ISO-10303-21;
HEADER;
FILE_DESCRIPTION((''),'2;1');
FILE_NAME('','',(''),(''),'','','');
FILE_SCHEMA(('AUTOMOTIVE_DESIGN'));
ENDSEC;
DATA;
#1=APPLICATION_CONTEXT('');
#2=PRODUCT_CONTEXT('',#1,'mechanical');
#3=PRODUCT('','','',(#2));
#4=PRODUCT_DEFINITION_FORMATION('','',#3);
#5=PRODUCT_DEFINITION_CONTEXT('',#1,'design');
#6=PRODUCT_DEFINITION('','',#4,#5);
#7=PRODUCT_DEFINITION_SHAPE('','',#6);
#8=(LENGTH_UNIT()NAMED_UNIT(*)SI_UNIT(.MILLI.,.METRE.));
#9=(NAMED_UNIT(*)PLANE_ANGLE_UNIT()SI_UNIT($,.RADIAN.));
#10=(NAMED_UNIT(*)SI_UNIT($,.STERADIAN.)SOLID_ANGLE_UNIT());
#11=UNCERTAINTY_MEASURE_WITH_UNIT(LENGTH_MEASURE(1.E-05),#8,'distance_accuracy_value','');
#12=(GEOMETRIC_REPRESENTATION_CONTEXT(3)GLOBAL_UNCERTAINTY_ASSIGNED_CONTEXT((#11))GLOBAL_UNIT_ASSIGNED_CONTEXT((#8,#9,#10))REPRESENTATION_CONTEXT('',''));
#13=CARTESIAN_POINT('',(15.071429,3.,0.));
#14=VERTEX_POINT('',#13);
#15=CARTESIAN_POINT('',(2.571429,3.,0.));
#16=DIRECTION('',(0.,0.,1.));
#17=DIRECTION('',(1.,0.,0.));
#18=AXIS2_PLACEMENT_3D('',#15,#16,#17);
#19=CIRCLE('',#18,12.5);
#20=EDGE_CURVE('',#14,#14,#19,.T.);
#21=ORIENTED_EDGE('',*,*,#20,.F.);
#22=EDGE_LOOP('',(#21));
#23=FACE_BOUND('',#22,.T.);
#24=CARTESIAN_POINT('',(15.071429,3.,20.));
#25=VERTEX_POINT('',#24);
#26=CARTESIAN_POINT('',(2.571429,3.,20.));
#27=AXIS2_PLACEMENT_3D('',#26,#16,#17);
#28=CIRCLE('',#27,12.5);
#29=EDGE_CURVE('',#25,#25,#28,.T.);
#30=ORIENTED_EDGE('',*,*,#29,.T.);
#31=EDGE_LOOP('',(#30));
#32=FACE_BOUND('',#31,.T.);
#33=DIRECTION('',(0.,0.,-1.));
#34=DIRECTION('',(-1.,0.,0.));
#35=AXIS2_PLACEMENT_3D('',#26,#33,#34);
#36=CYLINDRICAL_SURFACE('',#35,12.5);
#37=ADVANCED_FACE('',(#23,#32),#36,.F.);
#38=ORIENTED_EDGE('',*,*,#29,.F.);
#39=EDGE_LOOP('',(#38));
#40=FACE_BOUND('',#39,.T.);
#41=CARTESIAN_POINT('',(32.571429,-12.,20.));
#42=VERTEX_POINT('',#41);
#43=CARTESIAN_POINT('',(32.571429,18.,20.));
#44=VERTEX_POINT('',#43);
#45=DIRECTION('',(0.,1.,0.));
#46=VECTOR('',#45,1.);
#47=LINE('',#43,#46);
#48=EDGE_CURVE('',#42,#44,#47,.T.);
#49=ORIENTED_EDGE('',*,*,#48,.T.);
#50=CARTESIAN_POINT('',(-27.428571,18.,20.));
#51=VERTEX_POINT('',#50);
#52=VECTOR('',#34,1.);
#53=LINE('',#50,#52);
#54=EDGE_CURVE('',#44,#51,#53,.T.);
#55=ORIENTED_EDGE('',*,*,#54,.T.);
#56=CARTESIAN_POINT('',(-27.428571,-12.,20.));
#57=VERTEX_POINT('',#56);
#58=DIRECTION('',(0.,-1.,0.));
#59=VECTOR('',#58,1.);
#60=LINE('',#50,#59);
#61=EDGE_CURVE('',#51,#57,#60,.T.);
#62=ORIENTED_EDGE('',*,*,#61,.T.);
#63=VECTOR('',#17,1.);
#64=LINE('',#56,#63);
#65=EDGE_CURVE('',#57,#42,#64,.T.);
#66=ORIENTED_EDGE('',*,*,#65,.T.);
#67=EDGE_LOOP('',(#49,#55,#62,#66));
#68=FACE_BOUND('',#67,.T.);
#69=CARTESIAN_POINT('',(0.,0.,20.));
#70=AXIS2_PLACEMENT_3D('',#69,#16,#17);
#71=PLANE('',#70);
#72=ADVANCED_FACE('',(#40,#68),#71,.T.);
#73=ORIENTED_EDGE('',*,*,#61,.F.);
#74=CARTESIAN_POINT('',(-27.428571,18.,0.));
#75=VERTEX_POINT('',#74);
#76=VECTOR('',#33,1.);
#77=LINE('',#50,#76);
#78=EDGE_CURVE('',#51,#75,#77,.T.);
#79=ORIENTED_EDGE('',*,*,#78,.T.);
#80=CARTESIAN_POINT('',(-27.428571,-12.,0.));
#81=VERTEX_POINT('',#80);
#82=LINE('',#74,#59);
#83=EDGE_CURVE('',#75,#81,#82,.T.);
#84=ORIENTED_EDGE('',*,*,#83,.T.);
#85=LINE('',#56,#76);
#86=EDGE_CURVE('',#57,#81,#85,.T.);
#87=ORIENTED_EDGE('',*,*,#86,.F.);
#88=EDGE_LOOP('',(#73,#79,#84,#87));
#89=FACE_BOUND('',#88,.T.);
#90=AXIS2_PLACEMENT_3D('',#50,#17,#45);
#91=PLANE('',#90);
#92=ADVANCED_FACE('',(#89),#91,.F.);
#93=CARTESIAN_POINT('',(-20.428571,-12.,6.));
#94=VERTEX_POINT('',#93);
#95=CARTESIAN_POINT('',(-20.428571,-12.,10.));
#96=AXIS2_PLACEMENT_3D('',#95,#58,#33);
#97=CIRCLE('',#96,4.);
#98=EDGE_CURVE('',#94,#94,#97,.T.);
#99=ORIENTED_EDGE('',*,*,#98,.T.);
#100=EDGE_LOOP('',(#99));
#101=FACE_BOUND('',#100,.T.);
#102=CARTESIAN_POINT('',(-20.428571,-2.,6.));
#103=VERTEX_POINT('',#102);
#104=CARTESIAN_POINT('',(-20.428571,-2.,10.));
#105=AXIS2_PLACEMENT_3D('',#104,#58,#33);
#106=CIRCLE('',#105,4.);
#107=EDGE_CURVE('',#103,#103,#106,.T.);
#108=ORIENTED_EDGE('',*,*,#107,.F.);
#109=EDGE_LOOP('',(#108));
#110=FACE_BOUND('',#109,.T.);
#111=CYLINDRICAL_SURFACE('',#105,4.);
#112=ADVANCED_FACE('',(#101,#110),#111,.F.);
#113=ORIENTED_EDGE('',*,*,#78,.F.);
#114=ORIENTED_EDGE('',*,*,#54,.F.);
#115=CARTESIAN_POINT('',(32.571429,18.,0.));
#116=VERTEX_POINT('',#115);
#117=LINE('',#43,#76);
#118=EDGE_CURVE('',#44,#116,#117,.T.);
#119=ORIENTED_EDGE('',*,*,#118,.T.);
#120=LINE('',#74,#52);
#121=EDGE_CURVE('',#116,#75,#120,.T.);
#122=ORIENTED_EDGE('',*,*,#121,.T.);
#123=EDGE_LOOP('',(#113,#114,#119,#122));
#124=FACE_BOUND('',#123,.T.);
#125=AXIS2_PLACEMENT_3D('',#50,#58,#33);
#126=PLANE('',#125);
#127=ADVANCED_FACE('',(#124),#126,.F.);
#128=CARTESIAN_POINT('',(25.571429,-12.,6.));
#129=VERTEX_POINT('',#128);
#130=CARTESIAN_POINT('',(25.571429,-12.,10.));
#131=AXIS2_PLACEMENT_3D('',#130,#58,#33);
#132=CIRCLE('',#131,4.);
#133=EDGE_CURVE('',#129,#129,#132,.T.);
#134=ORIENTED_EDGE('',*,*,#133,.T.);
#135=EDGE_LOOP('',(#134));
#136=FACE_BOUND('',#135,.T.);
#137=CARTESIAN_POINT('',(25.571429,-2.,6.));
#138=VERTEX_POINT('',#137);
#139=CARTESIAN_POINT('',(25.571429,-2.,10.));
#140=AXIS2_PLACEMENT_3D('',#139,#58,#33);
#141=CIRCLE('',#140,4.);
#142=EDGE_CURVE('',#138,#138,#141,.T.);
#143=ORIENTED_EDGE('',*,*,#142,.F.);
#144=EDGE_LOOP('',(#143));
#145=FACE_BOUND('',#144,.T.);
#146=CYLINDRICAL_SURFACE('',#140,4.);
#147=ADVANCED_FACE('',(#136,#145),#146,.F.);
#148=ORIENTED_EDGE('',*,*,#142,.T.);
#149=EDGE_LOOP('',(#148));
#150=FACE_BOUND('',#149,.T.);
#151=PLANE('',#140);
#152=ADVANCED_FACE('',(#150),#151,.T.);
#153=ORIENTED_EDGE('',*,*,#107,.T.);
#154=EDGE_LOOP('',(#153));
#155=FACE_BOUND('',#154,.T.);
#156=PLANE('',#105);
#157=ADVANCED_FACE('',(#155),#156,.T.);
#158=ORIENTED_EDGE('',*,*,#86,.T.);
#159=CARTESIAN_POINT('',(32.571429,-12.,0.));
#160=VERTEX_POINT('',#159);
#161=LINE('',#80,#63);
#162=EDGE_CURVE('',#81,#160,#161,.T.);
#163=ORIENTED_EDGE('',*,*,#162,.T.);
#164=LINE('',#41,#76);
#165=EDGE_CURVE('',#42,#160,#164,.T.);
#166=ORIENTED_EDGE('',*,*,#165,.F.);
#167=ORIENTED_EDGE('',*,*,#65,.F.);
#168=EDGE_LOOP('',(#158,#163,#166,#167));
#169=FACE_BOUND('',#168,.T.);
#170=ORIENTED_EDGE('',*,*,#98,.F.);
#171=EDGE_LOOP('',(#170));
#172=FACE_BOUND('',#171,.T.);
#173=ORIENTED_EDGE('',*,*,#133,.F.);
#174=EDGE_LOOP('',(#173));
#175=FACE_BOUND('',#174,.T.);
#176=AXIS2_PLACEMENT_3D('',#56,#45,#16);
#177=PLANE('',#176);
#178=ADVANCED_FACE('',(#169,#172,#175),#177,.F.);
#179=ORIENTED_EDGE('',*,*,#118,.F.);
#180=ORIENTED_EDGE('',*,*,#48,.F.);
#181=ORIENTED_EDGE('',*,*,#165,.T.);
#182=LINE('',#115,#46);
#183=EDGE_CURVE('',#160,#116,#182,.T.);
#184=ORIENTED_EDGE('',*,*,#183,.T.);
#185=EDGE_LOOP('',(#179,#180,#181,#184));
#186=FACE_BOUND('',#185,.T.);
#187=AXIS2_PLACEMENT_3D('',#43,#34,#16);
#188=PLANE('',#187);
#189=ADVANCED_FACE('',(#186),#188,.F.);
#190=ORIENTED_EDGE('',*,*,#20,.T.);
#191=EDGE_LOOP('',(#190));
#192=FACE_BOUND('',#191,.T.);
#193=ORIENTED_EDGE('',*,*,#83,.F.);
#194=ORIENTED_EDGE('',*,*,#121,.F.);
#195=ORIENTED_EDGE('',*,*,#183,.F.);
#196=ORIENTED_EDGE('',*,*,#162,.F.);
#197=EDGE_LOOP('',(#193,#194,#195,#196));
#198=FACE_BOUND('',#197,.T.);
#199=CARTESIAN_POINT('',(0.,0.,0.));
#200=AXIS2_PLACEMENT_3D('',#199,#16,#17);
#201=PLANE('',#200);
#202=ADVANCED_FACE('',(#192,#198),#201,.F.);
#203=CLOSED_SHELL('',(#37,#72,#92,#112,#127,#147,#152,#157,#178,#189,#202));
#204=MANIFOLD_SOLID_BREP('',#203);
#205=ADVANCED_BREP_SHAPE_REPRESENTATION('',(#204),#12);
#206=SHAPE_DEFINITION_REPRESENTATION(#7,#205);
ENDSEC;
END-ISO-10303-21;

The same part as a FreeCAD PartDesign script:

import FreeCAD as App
import Part
import Sketcher

V = App.Vector
Q = App.Units.Quantity

doc = App.newDocument("Part")
params = doc.addObject("Spreadsheet::Sheet", "Params")
for row, (alias, value) in enumerate([
    ("sketch1_diameter", "25 mm"),
    ("sketch1_width", "60 mm"),
    ("sketch1_height", "30 mm"),
    ("pad1_length", "20 mm"),
    ("sketch2_diameter", "8 mm"),
    ("pocket1_length", "10 mm"),
], start=1):
    params.set(f"A{row}", alias)
    params.set(f"B{row}", "=" + value)
    params.setAlias(f"B{row}", alias)

body = doc.addObject("PartDesign::Body", "Body")

# Sketch on XY plane
sketch1 = body.newObject("Sketcher::SketchObject", "Sketch")
sketch1.AttachmentSupport = (doc.getObject("XY_Plane"), [""])
sketch1.MapMode = "FlatFace"
sketch1.addGeometry([
    Part.LineSegment(V(-27, 18, 0), V(-27, -12, 0)),  # 0
    Part.LineSegment(V(-27, -12, 0), V(33, -12, 0)),  # 1
    Part.LineSegment(V(33, -12, 0), V(33, 18, 0)),  # 2
    Part.LineSegment(V(33, 18, 0), V(-27, 18, 0)),  # 3
    Part.Circle(V(3, 3, 0), V(0, 0, 1), 12),  # 4
], False)
sketch1.addConstraint([
    Sketcher.Constraint("Coincident", 0, 2, 1, 1),
    Sketcher.Constraint("Coincident", 1, 2, 2, 1),
    Sketcher.Constraint("Coincident", 2, 2, 3, 1),
    Sketcher.Constraint("Coincident", 3, 2, 0, 1),
    Sketcher.Constraint("Vertical", 0),
    Sketcher.Constraint("Horizontal", 1),
    Sketcher.Constraint("Vertical", 2),
    Sketcher.Constraint("Horizontal", 3),
    Sketcher.Constraint("Diameter", 4, Q("25 mm")),
    Sketcher.Constraint("DistanceX", 1, 1, 1, 2, Q("60 mm")),
    Sketcher.Constraint("DistanceY", 0, 2, 0, 1, Q("30 mm")),
    Sketcher.Constraint("DistanceY", -1, 1, 4, 3, Q("3 mm")),
    Sketcher.Constraint("DistanceY", 0, 2, -1, 1, Q("12 mm")),
    Sketcher.Constraint("DistanceX", 0, 2, 4, 3, Q("30 mm")),
    Sketcher.Constraint("DistanceX", -1, 1, 4, 3, Q("2.571429 mm")),
])
sketch1.setExpression("Constraints[8]", "Params.sketch1_diameter")
sketch1.setExpression("Constraints[9]", "Params.sketch1_width")
sketch1.setExpression("Constraints[10]", "Params.sketch1_height")
pad1 = body.newObject("PartDesign::Pad", "Pad")
pad1.Profile = sketch1
pad1.setExpression("Length", "Params.pad1_length")

# Sketch on XZ plane
sketch2 = body.newObject("Sketcher::SketchObject", "Sketch001")
sketch2.AttachmentSupport = (doc.getObject("XZ_Plane"), [""])
sketch2.MapMode = "FlatFace"
sketch2.AttachmentOffset = App.Placement(V(0, 0, 12), App.Rotation())
sketch2.addGeometry([
    Part.Circle(V(-20.4, 10, 0), V(0, 0, 1), 4),
    Part.Circle(V(25.6, 10, 0), V(0, 0, 1), 4),
], False)
sketch2.addConstraint([
    Sketcher.Constraint("Equal", 0, 1),
    Sketcher.Constraint("Horizontal", 0, 3, 1, 3),
    Sketcher.Constraint("Diameter", 0, Q("8 mm")),
    Sketcher.Constraint("DistanceY", -1, 1, 0, 3, Q("10 mm")),
    Sketcher.Constraint("DistanceX", 0, 3, 1, 3, Q("46 mm")),
    Sketcher.Constraint("DistanceX", 0, 3, -1, 1, Q("20.428571 mm")),
])
sketch2.setExpression("Constraints[2]", "Params.sketch2_diameter")
pocket1 = body.newObject("PartDesign::Pocket", "Pocket")
pocket1.Profile = sketch2
pocket1.setExpression("Length", "Params.pocket1_length")

doc.recompute()
